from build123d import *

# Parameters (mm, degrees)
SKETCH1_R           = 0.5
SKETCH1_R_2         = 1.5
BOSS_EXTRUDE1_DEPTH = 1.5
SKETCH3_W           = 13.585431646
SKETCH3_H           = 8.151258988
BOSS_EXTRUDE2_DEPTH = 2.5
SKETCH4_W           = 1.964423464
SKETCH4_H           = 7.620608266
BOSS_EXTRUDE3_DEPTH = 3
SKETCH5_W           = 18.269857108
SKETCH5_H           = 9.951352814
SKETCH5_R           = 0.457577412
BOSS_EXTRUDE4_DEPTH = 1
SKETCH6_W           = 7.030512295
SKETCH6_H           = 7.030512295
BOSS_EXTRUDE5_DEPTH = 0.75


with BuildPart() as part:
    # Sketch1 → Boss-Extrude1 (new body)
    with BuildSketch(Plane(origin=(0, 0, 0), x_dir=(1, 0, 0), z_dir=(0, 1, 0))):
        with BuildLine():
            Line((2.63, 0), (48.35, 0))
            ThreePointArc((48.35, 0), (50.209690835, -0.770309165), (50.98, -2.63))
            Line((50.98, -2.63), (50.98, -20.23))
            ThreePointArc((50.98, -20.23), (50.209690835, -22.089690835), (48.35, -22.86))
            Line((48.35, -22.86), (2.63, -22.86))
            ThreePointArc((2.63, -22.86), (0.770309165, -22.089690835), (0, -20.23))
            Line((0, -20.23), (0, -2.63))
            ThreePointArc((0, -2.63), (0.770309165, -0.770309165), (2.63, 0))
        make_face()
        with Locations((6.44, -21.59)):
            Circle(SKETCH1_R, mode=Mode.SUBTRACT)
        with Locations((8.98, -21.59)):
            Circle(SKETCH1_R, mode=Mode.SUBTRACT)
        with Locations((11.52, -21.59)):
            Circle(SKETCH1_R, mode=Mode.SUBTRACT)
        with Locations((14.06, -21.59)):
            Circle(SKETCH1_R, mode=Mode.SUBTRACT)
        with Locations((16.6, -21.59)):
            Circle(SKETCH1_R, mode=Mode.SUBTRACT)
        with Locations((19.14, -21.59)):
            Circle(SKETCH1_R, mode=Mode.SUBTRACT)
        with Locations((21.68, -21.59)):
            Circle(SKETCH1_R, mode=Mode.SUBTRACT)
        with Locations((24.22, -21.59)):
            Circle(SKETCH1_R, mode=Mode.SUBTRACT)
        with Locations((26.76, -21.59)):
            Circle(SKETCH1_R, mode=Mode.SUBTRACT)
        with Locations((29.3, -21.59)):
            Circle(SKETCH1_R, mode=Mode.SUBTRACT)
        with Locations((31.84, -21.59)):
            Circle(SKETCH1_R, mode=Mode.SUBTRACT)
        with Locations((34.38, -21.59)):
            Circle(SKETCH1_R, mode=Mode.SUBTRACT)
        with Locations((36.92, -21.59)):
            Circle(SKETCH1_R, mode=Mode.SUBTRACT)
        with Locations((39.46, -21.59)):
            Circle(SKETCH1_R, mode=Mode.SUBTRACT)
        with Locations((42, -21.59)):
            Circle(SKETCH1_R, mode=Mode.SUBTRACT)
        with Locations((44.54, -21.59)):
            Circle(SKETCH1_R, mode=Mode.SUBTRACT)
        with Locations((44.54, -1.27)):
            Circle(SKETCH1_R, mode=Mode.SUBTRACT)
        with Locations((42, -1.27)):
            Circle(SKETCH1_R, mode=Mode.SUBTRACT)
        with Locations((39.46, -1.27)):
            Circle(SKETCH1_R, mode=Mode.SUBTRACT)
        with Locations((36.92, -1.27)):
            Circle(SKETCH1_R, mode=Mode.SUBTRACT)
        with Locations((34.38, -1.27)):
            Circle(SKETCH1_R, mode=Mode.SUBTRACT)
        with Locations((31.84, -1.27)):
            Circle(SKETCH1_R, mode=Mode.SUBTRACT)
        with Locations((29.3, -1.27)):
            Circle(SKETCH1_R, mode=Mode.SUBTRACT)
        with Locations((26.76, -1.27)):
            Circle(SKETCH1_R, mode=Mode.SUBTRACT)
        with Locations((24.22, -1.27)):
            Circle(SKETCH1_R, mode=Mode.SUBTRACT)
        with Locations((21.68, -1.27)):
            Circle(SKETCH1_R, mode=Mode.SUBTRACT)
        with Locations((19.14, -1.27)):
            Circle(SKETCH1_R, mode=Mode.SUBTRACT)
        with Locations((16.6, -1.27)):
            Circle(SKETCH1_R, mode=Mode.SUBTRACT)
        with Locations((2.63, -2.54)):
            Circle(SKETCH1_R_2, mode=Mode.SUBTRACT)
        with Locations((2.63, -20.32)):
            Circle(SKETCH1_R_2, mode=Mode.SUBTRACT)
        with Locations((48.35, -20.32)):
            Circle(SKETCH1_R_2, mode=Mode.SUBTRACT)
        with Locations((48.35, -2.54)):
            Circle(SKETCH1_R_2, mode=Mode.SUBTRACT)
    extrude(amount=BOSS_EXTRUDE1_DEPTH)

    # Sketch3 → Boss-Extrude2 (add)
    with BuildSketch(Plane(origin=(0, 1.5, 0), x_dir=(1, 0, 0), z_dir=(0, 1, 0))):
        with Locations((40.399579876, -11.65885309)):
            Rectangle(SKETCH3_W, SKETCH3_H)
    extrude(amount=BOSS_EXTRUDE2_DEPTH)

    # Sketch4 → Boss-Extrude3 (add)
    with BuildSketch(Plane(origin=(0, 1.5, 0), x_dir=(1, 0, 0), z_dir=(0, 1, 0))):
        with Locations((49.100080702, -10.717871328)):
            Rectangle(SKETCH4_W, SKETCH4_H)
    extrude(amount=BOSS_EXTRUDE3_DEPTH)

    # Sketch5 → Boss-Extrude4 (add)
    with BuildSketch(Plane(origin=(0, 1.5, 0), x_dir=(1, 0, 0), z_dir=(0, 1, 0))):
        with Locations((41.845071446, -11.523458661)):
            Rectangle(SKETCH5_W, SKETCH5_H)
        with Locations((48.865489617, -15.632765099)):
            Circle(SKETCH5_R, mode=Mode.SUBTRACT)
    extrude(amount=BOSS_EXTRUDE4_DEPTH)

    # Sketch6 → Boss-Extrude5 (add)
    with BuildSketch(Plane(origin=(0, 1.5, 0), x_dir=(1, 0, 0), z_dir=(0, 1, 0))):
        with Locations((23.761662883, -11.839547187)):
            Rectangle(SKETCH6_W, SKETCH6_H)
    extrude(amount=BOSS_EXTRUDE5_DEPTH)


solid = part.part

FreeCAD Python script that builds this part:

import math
import FreeCAD as App
import Part
import Sketcher
from FreeCAD import Vector


def add_polygon(sketch, points):
    """Adds a closed chain of lines whose ends are joined by coincident constraints."""
    first, n = sketch.GeometryCount, len(points)
    for a, b in zip(points, points[1:] + points[:1]):
        sketch.addGeometry(Part.LineSegment(App.Vector(*a, 0), App.Vector(*b, 0)), False)
    for i in range(n):
        sketch.addConstraint(Sketcher.Constraint("Coincident", first + i, 2, first + (i + 1) % n, 1))

doc = App.newDocument("Part")
body = doc.addObject("PartDesign::Body", "Body")

# Sketch on XZ plane
sketch1 = body.newObject("Sketcher::SketchObject", "Sketch")
sketch1.AttachmentSupport = (doc.getObject("XZ_Plane"), [""])
sketch1.MapMode = "FlatFace"
sketch1.addGeometry([
    Part.LineSegment(Vector(48.4, 0, 0), Vector(2.6, 0, 0)),  # 0
    Part.ArcOfCircle(Part.Circle(Vector(2.6, 2.6, 0), Vector(0, 0, 1), 2.6), math.radians(180), math.radians(270)),  # 1
    Part.LineSegment(Vector(0, 2.6, 0), Vector(0, 20.2, 0)),  # 2
    Part.ArcOfCircle(Part.Circle(Vector(2.6, 20.2, 0), Vector(0, 0, 1), 2.6), math.radians(90), math.radians(180)),  # 3
    Part.LineSegment(Vector(2.6, 22.9, 0), Vector(48.4, 22.9, 0)),  # 4
    Part.ArcOfCircle(Part.Circle(Vector(48.4, 20.2, 0), Vector(0, 0, 1), 2.6), math.radians(0), math.radians(90)),  # 5
    Part.LineSegment(Vector(51, 20.2, 0), Vector(51, 2.6, 0)),  # 6
    Part.ArcOfCircle(Part.Circle(Vector(48.4, 2.6, 0), Vector(0, 0, 1), 2.6), math.radians(-90), math.radians(0)),  # 7
    Part.Circle(Vector(44.5, 21.6, 0), Vector(0, 0, 1), 0.5),  # 8
    Part.Circle(Vector(48.4, 20.3, 0), Vector(0, 0, 1), 1.5),  # 9
    Part.Circle(Vector(42, 21.6, 0), Vector(0, 0, 1), 0.5),  # 10
    Part.Circle(Vector(39.5, 21.6, 0), Vector(0, 0, 1), 0.5),  # 11
    Part.Circle(Vector(36.9, 21.6, 0), Vector(0, 0, 1), 0.5),  # 12
    Part.Circle(Vector(34.4, 21.6, 0), Vector(0, 0, 1), 0.5),  # 13
    Part.Circle(Vector(31.8, 21.6, 0), Vector(0, 0, 1), 0.5),  # 14
    Part.Circle(Vector(29.3, 21.6, 0), Vector(0, 0, 1), 0.5),  # 15
    Part.Circle(Vector(26.8, 21.6, 0), Vector(0, 0, 1), 0.5),  # 16
    Part.Circle(Vector(24.2, 21.6, 0), Vector(0, 0, 1), 0.5),  # 17
    Part.Circle(Vector(21.7, 21.6, 0), Vector(0, 0, 1), 0.5),  # 18
    Part.Circle(Vector(19.1, 21.6, 0), Vector(0, 0, 1), 0.5),  # 19
    Part.Circle(Vector(16.6, 21.6, 0), Vector(0, 0, 1), 0.5),  # 20
    Part.Circle(Vector(14.1, 21.6, 0), Vector(0, 0, 1), 0.5),  # 21
    Part.Circle(Vector(11.5, 21.6, 0), Vector(0, 0, 1), 0.5),  # 22
    Part.Circle(Vector(9, 21.6, 0), Vector(0, 0, 1), 0.5),  # 23
    Part.Circle(Vector(6.4, 21.6, 0), Vector(0, 0, 1), 0.5),  # 24
    Part.Circle(Vector(2.6, 20.3, 0), Vector(0, 0, 1), 1.5),  # 25
    Part.Circle(Vector(48.4, 2.5, 0), Vector(0, 0, 1), 1.5),  # 26
    Part.Circle(Vector(44.5, 1.3, 0), Vector(0, 0, 1), 0.5),  # 27
    Part.Circle(Vector(42, 1.3, 0), Vector(0, 0, 1), 0.5),  # 28
    Part.Circle(Vector(39.5, 1.3, 0), Vector(0, 0, 1), 0.5),  # 29
    Part.Circle(Vector(36.9, 1.3, 0), Vector(0, 0, 1), 0.5),  # 30
    Part.Circle(Vector(34.4, 1.3, 0), Vector(0, 0, 1), 0.5),  # 31
    Part.Circle(Vector(31.8, 1.3, 0), Vector(0, 0, 1), 0.5),  # 32
    Part.Circle(Vector(29.3, 1.3, 0), Vector(0, 0, 1), 0.5),  # 33
    Part.Circle(Vector(26.8, 1.3, 0), Vector(0, 0, 1), 0.5),  # 34
    Part.Circle(Vector(24.2, 1.3, 0), Vector(0, 0, 1), 0.5),  # 35
    Part.Circle(Vector(21.7, 1.3, 0), Vector(0, 0, 1), 0.5),  # 36
    Part.Circle(Vector(19.1, 1.3, 0), Vector(0, 0, 1), 0.5),  # 37
    Part.Circle(Vector(16.6, 1.3, 0), Vector(0, 0, 1), 0.5),  # 38
    Part.Circle(Vector(2.6, 2.5, 0), Vector(0, 0, 1), 1.5),  # 39
], False)
sketch1.addConstraint([
    Sketcher.Constraint("Tangent", 0, 2, 1, 2),
    Sketcher.Constraint("Tangent", 1, 1, 2, 1),
    Sketcher.Constraint("Tangent", 2, 2, 3, 2),
    Sketcher.Constraint("Tangent", 3, 1, 4, 1),
    Sketcher.Constraint("Tangent", 4, 2, 5, 2),
    Sketcher.Constraint("Tangent", 5, 1, 6, 1),
    Sketcher.Constraint("Tangent", 6, 2, 7, 2),
    Sketcher.Constraint("Tangent", 7, 1, 0, 1),
    Sketcher.Constraint("Horizontal", 0),
    Sketcher.Constraint("Vertical", 2),
    Sketcher.Constraint("Horizontal", 4),
    Sketcher.Constraint("Vertical", 6),
    Sketcher.Constraint("Equal", 1, 3),
    Sketcher.Constraint("Equal", 3, 5),
    Sketcher.Constraint("Equal", 5, 7),
    Sketcher.Constraint("Equal", 8, 10),
    Sketcher.Constraint("Equal", 10, 11),
    Sketcher.Constraint("Equal", 11, 12),
    Sketcher.Constraint("Equal", 12, 13),
    Sketcher.Constraint("Equal", 13, 14),
    Sketcher.Constraint("Equal", 14, 15),
    Sketcher.Constraint("Equal", 15, 16),
    Sketcher.Constraint("Equal", 16, 17),
    Sketcher.Constraint("Equal", 17, 18),
    Sketcher.Constraint("Equal", 18, 19),
    Sketcher.Constraint("Equal", 19, 20),
    Sketcher.Constraint("Equal", 20, 21),
    Sketcher.Constraint("Equal", 21, 22),
    Sketcher.Constraint("Equal", 22, 23),
    Sketcher.Constraint("Equal", 23, 24),
    Sketcher.Constraint("Equal", 9, 25),
    Sketcher.Constraint("Equal", 25, 26),
    Sketcher.Constraint("Equal", 24, 27),
    Sketcher.Constraint("Equal", 27, 28),
    Sketcher.Constraint("Equal", 28, 29),
    Sketcher.Constraint("Equal", 29, 30),
    Sketcher.Constraint("Equal", 30, 31),
    Sketcher.Constraint("Equal", 31, 32),
    Sketcher.Constraint("Equal", 32, 33),
    Sketcher.Constraint("Equal", 33, 34),
    Sketcher.Constraint("Equal", 34, 35),
    Sketcher.Constraint("Equal", 35, 36),
    Sketcher.Constraint("Equal", 36, 37),
    Sketcher.Constraint("Equal", 37, 38),
    Sketcher.Constraint("Equal", 26, 39),
    Sketcher.Constraint("PointOnObject", 0, 2, -1),
    Sketcher.Constraint("PointOnObject", 1, 1, -2),
    Sketcher.Constraint("Horizontal", 8, 3, 10, 3),
    Sketcher.Constraint("Horizontal", 10, 3, 11, 3),
    Sketcher.Constraint("Horizontal", 11, 3, 12, 3),
    Sketcher.Constraint("Horizontal", 12, 3, 13, 3),
    Sketcher.Constraint("Horizontal", 13, 3, 14, 3),
    Sketcher.Constraint("Horizontal", 14, 3, 15, 3),
    Sketcher.Constraint("Horizontal", 15, 3, 16, 3),
    Sketcher.Constraint("Horizontal", 16, 3, 17, 3),
    Sketcher.Constraint("Horizontal", 17, 3, 18, 3),
    Sketcher.Constraint("Horizontal", 18, 3, 19, 3),
    Sketcher.Constraint("Horizontal", 19, 3, 20, 3),
    Sketcher.Constraint("Horizontal", 20, 3, 21, 3),
    Sketcher.Constraint("Horizontal", 21, 3, 22, 3),
    Sketcher.Constraint("Horizontal", 22, 3, 23, 3),
    Sketcher.Constraint("Horizontal", 23, 3, 24, 3),
    Sketcher.Constraint("Horizontal", 9, 3, 25, 3),
    Sketcher.Constraint("Horizontal", 27, 3, 28, 3),
    Sketcher.Constraint("Horizontal", 28, 3, 29, 3),
    Sketcher.Constraint("Horizontal", 29, 3, 30, 3),
    Sketcher.Constraint("Horizontal", 30, 3, 31, 3),
    Sketcher.Constraint("Horizontal", 31, 3, 32, 3),
    Sketcher.Constraint("Horizontal", 32, 3, 33, 3),
    Sketcher.Constraint("Horizontal", 33, 3, 34, 3),
    Sketcher.Constraint("Horizontal", 34, 3, 35, 3),
    Sketcher.Constraint("Horizontal", 35, 3, 36, 3),
    Sketcher.Constraint("Horizontal", 36, 3, 37, 3),
    Sketcher.Constraint("Horizontal", 37, 3, 38, 3),
    Sketcher.Constraint("Horizontal", 26, 3, 39, 3),
    Sketcher.Constraint("Vertical", 7, 3, 9, 3),
    Sketcher.Constraint("Vertical", 3, 3, 25, 3),
    Sketcher.Constraint("Vertical", 9, 3, 26, 3),
    Sketcher.Constraint("Vertical", 8, 3, 27, 3),
    Sketcher.Constraint("Vertical", 10, 3, 28, 3),
    Sketcher.Constraint("Vertical", 11, 3, 29, 3),
    Sketcher.Constraint("Vertical", 12, 3, 30, 3),
    Sketcher.Constraint("Vertical", 13, 3, 31, 3),
    Sketcher.Constraint("Vertical", 14, 3, 32, 3),
    Sketcher.Constraint("Vertical", 15, 3, 33, 3),
    Sketcher.Constraint("Vertical", 16, 3, 34, 3),
    Sketcher.Constraint("Vertical", 17, 3, 35, 3),
    Sketcher.Constraint("Vertical", 18, 3, 36, 3),
    Sketcher.Constraint("Vertical", 19, 3, 37, 3),
    Sketcher.Constraint("Vertical", 20, 3, 38, 3),
    Sketcher.Constraint("Vertical", 25, 3, 39, 3),
    Sketcher.Constraint("Diameter", 8, 1.0),
    Sketcher.Constraint("Diameter", 9, 3.0),
    Sketcher.Constraint("Radius", 1, 2.63),
    Sketcher.Constraint("DistanceY", 2, 1, 2, 2, 17.6),
    Sketcher.Constraint("DistanceX", -1, 1, 10, 3, 42.0),
    Sketcher.Constraint("DistanceX", 0, 2, 0, 1, 45.72),
    Sketcher.Constraint("DistanceX", -1, 1, 15, 3, 29.3),
    Sketcher.Constraint("DistanceX", -1, 1, 20, 3, 16.6),
    Sketcher.Constraint("DistanceX", 14, 3, 8, 3, 12.7),
    Sketcher.Constraint("DistanceX", 16, 3, 11, 3, 12.7),
    Sketcher.Constraint("DistanceX", 17, 3, 12, 3, 12.7),
    Sketcher.Constraint("DistanceX", 18, 3, 13, 3, 12.7),
    Sketcher.Constraint("DistanceX", 19, 3, 14, 3, 12.7),
    Sketcher.Constraint("DistanceX", -1, 1, 8, 3, 44.54),
    Sketcher.Constraint("DistanceY", -1, 1, 8, 3, 21.59),
    Sketcher.Constraint("DistanceY", -1, 1, 9, 3, 20.32),
    Sketcher.Constraint("DistanceX", -1, 1, 11, 3, 39.46),
    Sketcher.Constraint("DistanceX", -1, 1, 12, 3, 36.92),
    Sketcher.Constraint("DistanceX", -1, 1, 13, 3, 34.38),
    Sketcher.Constraint("DistanceX", -1, 1, 21, 3, 14.06),
    Sketcher.Constraint("DistanceX", -1, 1, 22, 3, 11.52),
    Sketcher.Constraint("DistanceX", -1, 1, 23, 3, 8.98),
    Sketcher.Constraint("DistanceX", -1, 1, 24, 3, 6.44),
    Sketcher.Constraint("DistanceY", -1, 1, 26, 3, 2.54),
    Sketcher.Constraint("DistanceY", -1, 1, 27, 3, 1.27),
])
pad1 = body.newObject("PartDesign::Pad", "Pad")
pad1.Profile = sketch1
pad1.Length = 1.5
pad1.Reversed = True

# Sketch on XZ plane
sketch2 = body.newObject("Sketcher::SketchObject", "Sketch001")
sketch2.AttachmentSupport = (doc.getObject("XZ_Plane"), [""])
sketch2.MapMode = "FlatFace"
sketch2.AttachmentOffset = App.Placement(Vector(0, 0, -1.5), App.Rotation())
add_polygon(sketch2, [(34, 8), (34, 16), (47, 16), (47, 8)])  # lines 0-3
sketch2.addConstraint([
    Sketcher.Constraint("Vertical", 0),
    Sketcher.Constraint("Horizontal", 1),
    Sketcher.Constraint("Vertical", 2),
    Sketcher.Constraint("Horizontal", 3),
    Sketcher.Constraint("DistanceX", 1, 1, 1, 2, 13.585432),
    Sketcher.Constraint("DistanceY", 0, 1, 0, 2, 8.151259),
    Sketcher.Constraint("DistanceX", -1, 1, 0, 2, 33.606864),
    Sketcher.Constraint("DistanceY", -1, 1, 0, 2, 15.734483),
])
pad2 = body.newObject("PartDesign::Pad", "Pad001")
pad2.Profile = sketch2
pad2.Length = 2.5
pad2.Reversed = True

# Sketch on XZ plane
sketch3 = body.newObject("Sketcher::SketchObject", "Sketch002")
sketch3.AttachmentSupport = (doc.getObject("XZ_Plane"), [""])
sketch3.MapMode = "FlatFace"
sketch3.AttachmentOffset = App.Placement(Vector(0, 0, -1.5), App.Rotation())
add_polygon(sketch3, [(48.1, 6.9), (48.1, 14.5), (50.1, 14.5), (50.1, 6.9)])  # lines 0-3
sketch3.addConstraint([
    Sketcher.Constraint("Vertical", 0),
    Sketcher.Constraint("Horizontal", 1),
    Sketcher.Constraint("Vertical", 2),
    Sketcher.Constraint("Horizontal", 3),
    Sketcher.Constraint("DistanceY", 0, 1, 0, 2, 7.620608),
    Sketcher.Constraint("DistanceX", 1, 1, 1, 2, 1.964423),
    Sketcher.Constraint("DistanceX", -1, 1, 0, 2, 48.117869),
    Sketcher.Constraint("DistanceY", -1, 1, 0, 2, 14.528175),
])
pad3 = body.newObject("PartDesign::Pad", "Pad002")
pad3.Profile = sketch3
pad3.Length = 3
pad3.Reversed = True

# Sketch on XZ plane
sketch4 = body.newObject("Sketcher::SketchObject", "Sketch003")
sketch4.AttachmentSupport = (doc.getObject("XZ_Plane"), [""])
sketch4.MapMode = "FlatFace"
sketch4.AttachmentOffset = App.Placement(Vector(0, 0, -1.5), App.Rotation())
add_polygon(sketch4, [(32.71, 6.55), (32.71, 16.5), (50.98, 16.5), (50.98, 6.55)])  # lines 0-3
sketch4.addGeometry(Part.Circle(Vector(48.87, 15.63, 0), Vector(0, 0, 1), 0.46), False)  # 4
sketch4.addConstraint([
    Sketcher.Constraint("Vertical", 0),
    Sketcher.Constraint("Horizontal", 1),
    Sketcher.Constraint("Vertical", 2),
    Sketcher.Constraint("Horizontal", 3),
    Sketcher.Constraint("DistanceX", -1, 1, 1, 2, 50.98),
    Sketcher.Constraint("Diameter", 4, 0.915155),
    Sketcher.Constraint("DistanceX", 1, 1, 1, 2, 18.269857),
    Sketcher.Constraint("DistanceY", 0, 1, 0, 2, 9.951353),
    Sketcher.Constraint("DistanceX", -1, 1, 4, 3, 48.86549),
    Sketcher.Constraint("DistanceY", 4, 3, 0, 2, 0.86637),
    Sketcher.Constraint("DistanceY", -1, 1, 4, 3, 15.632765),
])
pad4 = body.newObject("PartDesign::Pad", "Pad003")
pad4.Profile = sketch4
pad4.Length = 1
pad4.Reversed = True

# Sketch on XZ plane
sketch5 = body.newObject("Sketcher::SketchObject", "Sketch004")
sketch5.AttachmentSupport = (doc.getObject("XZ_Plane"), [""])
sketch5.MapMode = "FlatFace"
sketch5.AttachmentOffset = App.Placement(Vector(0, 0, -1.5), App.Rotation())
add_polygon(sketch5, [(20, 8), (20, 15), (27, 15), (27, 8)])  # lines 0-3
sketch5.addConstraint([
    Sketcher.Constraint("Vertical", 0),
    Sketcher.Constraint("Horizontal", 1),
    Sketcher.Constraint("Vertical", 2),
    Sketcher.Constraint("Horizontal", 3),
    Sketcher.Constraint("Equal", 3, 0),
    Sketcher.Constraint("DistanceX", 1, 1, 1, 2, 7.030512),
    Sketcher.Constraint("DistanceX", -1, 1, 1, 2, 27.276919),
    Sketcher.Constraint("DistanceY", -1, 1, 2, 2, 8.324291),
])
pad5 = body.newObject("PartDesign::Pad", "Pad004")
pad5.Profile = sketch5
pad5.Length = 0.75
pad5.Reversed = True

doc.recompute()
